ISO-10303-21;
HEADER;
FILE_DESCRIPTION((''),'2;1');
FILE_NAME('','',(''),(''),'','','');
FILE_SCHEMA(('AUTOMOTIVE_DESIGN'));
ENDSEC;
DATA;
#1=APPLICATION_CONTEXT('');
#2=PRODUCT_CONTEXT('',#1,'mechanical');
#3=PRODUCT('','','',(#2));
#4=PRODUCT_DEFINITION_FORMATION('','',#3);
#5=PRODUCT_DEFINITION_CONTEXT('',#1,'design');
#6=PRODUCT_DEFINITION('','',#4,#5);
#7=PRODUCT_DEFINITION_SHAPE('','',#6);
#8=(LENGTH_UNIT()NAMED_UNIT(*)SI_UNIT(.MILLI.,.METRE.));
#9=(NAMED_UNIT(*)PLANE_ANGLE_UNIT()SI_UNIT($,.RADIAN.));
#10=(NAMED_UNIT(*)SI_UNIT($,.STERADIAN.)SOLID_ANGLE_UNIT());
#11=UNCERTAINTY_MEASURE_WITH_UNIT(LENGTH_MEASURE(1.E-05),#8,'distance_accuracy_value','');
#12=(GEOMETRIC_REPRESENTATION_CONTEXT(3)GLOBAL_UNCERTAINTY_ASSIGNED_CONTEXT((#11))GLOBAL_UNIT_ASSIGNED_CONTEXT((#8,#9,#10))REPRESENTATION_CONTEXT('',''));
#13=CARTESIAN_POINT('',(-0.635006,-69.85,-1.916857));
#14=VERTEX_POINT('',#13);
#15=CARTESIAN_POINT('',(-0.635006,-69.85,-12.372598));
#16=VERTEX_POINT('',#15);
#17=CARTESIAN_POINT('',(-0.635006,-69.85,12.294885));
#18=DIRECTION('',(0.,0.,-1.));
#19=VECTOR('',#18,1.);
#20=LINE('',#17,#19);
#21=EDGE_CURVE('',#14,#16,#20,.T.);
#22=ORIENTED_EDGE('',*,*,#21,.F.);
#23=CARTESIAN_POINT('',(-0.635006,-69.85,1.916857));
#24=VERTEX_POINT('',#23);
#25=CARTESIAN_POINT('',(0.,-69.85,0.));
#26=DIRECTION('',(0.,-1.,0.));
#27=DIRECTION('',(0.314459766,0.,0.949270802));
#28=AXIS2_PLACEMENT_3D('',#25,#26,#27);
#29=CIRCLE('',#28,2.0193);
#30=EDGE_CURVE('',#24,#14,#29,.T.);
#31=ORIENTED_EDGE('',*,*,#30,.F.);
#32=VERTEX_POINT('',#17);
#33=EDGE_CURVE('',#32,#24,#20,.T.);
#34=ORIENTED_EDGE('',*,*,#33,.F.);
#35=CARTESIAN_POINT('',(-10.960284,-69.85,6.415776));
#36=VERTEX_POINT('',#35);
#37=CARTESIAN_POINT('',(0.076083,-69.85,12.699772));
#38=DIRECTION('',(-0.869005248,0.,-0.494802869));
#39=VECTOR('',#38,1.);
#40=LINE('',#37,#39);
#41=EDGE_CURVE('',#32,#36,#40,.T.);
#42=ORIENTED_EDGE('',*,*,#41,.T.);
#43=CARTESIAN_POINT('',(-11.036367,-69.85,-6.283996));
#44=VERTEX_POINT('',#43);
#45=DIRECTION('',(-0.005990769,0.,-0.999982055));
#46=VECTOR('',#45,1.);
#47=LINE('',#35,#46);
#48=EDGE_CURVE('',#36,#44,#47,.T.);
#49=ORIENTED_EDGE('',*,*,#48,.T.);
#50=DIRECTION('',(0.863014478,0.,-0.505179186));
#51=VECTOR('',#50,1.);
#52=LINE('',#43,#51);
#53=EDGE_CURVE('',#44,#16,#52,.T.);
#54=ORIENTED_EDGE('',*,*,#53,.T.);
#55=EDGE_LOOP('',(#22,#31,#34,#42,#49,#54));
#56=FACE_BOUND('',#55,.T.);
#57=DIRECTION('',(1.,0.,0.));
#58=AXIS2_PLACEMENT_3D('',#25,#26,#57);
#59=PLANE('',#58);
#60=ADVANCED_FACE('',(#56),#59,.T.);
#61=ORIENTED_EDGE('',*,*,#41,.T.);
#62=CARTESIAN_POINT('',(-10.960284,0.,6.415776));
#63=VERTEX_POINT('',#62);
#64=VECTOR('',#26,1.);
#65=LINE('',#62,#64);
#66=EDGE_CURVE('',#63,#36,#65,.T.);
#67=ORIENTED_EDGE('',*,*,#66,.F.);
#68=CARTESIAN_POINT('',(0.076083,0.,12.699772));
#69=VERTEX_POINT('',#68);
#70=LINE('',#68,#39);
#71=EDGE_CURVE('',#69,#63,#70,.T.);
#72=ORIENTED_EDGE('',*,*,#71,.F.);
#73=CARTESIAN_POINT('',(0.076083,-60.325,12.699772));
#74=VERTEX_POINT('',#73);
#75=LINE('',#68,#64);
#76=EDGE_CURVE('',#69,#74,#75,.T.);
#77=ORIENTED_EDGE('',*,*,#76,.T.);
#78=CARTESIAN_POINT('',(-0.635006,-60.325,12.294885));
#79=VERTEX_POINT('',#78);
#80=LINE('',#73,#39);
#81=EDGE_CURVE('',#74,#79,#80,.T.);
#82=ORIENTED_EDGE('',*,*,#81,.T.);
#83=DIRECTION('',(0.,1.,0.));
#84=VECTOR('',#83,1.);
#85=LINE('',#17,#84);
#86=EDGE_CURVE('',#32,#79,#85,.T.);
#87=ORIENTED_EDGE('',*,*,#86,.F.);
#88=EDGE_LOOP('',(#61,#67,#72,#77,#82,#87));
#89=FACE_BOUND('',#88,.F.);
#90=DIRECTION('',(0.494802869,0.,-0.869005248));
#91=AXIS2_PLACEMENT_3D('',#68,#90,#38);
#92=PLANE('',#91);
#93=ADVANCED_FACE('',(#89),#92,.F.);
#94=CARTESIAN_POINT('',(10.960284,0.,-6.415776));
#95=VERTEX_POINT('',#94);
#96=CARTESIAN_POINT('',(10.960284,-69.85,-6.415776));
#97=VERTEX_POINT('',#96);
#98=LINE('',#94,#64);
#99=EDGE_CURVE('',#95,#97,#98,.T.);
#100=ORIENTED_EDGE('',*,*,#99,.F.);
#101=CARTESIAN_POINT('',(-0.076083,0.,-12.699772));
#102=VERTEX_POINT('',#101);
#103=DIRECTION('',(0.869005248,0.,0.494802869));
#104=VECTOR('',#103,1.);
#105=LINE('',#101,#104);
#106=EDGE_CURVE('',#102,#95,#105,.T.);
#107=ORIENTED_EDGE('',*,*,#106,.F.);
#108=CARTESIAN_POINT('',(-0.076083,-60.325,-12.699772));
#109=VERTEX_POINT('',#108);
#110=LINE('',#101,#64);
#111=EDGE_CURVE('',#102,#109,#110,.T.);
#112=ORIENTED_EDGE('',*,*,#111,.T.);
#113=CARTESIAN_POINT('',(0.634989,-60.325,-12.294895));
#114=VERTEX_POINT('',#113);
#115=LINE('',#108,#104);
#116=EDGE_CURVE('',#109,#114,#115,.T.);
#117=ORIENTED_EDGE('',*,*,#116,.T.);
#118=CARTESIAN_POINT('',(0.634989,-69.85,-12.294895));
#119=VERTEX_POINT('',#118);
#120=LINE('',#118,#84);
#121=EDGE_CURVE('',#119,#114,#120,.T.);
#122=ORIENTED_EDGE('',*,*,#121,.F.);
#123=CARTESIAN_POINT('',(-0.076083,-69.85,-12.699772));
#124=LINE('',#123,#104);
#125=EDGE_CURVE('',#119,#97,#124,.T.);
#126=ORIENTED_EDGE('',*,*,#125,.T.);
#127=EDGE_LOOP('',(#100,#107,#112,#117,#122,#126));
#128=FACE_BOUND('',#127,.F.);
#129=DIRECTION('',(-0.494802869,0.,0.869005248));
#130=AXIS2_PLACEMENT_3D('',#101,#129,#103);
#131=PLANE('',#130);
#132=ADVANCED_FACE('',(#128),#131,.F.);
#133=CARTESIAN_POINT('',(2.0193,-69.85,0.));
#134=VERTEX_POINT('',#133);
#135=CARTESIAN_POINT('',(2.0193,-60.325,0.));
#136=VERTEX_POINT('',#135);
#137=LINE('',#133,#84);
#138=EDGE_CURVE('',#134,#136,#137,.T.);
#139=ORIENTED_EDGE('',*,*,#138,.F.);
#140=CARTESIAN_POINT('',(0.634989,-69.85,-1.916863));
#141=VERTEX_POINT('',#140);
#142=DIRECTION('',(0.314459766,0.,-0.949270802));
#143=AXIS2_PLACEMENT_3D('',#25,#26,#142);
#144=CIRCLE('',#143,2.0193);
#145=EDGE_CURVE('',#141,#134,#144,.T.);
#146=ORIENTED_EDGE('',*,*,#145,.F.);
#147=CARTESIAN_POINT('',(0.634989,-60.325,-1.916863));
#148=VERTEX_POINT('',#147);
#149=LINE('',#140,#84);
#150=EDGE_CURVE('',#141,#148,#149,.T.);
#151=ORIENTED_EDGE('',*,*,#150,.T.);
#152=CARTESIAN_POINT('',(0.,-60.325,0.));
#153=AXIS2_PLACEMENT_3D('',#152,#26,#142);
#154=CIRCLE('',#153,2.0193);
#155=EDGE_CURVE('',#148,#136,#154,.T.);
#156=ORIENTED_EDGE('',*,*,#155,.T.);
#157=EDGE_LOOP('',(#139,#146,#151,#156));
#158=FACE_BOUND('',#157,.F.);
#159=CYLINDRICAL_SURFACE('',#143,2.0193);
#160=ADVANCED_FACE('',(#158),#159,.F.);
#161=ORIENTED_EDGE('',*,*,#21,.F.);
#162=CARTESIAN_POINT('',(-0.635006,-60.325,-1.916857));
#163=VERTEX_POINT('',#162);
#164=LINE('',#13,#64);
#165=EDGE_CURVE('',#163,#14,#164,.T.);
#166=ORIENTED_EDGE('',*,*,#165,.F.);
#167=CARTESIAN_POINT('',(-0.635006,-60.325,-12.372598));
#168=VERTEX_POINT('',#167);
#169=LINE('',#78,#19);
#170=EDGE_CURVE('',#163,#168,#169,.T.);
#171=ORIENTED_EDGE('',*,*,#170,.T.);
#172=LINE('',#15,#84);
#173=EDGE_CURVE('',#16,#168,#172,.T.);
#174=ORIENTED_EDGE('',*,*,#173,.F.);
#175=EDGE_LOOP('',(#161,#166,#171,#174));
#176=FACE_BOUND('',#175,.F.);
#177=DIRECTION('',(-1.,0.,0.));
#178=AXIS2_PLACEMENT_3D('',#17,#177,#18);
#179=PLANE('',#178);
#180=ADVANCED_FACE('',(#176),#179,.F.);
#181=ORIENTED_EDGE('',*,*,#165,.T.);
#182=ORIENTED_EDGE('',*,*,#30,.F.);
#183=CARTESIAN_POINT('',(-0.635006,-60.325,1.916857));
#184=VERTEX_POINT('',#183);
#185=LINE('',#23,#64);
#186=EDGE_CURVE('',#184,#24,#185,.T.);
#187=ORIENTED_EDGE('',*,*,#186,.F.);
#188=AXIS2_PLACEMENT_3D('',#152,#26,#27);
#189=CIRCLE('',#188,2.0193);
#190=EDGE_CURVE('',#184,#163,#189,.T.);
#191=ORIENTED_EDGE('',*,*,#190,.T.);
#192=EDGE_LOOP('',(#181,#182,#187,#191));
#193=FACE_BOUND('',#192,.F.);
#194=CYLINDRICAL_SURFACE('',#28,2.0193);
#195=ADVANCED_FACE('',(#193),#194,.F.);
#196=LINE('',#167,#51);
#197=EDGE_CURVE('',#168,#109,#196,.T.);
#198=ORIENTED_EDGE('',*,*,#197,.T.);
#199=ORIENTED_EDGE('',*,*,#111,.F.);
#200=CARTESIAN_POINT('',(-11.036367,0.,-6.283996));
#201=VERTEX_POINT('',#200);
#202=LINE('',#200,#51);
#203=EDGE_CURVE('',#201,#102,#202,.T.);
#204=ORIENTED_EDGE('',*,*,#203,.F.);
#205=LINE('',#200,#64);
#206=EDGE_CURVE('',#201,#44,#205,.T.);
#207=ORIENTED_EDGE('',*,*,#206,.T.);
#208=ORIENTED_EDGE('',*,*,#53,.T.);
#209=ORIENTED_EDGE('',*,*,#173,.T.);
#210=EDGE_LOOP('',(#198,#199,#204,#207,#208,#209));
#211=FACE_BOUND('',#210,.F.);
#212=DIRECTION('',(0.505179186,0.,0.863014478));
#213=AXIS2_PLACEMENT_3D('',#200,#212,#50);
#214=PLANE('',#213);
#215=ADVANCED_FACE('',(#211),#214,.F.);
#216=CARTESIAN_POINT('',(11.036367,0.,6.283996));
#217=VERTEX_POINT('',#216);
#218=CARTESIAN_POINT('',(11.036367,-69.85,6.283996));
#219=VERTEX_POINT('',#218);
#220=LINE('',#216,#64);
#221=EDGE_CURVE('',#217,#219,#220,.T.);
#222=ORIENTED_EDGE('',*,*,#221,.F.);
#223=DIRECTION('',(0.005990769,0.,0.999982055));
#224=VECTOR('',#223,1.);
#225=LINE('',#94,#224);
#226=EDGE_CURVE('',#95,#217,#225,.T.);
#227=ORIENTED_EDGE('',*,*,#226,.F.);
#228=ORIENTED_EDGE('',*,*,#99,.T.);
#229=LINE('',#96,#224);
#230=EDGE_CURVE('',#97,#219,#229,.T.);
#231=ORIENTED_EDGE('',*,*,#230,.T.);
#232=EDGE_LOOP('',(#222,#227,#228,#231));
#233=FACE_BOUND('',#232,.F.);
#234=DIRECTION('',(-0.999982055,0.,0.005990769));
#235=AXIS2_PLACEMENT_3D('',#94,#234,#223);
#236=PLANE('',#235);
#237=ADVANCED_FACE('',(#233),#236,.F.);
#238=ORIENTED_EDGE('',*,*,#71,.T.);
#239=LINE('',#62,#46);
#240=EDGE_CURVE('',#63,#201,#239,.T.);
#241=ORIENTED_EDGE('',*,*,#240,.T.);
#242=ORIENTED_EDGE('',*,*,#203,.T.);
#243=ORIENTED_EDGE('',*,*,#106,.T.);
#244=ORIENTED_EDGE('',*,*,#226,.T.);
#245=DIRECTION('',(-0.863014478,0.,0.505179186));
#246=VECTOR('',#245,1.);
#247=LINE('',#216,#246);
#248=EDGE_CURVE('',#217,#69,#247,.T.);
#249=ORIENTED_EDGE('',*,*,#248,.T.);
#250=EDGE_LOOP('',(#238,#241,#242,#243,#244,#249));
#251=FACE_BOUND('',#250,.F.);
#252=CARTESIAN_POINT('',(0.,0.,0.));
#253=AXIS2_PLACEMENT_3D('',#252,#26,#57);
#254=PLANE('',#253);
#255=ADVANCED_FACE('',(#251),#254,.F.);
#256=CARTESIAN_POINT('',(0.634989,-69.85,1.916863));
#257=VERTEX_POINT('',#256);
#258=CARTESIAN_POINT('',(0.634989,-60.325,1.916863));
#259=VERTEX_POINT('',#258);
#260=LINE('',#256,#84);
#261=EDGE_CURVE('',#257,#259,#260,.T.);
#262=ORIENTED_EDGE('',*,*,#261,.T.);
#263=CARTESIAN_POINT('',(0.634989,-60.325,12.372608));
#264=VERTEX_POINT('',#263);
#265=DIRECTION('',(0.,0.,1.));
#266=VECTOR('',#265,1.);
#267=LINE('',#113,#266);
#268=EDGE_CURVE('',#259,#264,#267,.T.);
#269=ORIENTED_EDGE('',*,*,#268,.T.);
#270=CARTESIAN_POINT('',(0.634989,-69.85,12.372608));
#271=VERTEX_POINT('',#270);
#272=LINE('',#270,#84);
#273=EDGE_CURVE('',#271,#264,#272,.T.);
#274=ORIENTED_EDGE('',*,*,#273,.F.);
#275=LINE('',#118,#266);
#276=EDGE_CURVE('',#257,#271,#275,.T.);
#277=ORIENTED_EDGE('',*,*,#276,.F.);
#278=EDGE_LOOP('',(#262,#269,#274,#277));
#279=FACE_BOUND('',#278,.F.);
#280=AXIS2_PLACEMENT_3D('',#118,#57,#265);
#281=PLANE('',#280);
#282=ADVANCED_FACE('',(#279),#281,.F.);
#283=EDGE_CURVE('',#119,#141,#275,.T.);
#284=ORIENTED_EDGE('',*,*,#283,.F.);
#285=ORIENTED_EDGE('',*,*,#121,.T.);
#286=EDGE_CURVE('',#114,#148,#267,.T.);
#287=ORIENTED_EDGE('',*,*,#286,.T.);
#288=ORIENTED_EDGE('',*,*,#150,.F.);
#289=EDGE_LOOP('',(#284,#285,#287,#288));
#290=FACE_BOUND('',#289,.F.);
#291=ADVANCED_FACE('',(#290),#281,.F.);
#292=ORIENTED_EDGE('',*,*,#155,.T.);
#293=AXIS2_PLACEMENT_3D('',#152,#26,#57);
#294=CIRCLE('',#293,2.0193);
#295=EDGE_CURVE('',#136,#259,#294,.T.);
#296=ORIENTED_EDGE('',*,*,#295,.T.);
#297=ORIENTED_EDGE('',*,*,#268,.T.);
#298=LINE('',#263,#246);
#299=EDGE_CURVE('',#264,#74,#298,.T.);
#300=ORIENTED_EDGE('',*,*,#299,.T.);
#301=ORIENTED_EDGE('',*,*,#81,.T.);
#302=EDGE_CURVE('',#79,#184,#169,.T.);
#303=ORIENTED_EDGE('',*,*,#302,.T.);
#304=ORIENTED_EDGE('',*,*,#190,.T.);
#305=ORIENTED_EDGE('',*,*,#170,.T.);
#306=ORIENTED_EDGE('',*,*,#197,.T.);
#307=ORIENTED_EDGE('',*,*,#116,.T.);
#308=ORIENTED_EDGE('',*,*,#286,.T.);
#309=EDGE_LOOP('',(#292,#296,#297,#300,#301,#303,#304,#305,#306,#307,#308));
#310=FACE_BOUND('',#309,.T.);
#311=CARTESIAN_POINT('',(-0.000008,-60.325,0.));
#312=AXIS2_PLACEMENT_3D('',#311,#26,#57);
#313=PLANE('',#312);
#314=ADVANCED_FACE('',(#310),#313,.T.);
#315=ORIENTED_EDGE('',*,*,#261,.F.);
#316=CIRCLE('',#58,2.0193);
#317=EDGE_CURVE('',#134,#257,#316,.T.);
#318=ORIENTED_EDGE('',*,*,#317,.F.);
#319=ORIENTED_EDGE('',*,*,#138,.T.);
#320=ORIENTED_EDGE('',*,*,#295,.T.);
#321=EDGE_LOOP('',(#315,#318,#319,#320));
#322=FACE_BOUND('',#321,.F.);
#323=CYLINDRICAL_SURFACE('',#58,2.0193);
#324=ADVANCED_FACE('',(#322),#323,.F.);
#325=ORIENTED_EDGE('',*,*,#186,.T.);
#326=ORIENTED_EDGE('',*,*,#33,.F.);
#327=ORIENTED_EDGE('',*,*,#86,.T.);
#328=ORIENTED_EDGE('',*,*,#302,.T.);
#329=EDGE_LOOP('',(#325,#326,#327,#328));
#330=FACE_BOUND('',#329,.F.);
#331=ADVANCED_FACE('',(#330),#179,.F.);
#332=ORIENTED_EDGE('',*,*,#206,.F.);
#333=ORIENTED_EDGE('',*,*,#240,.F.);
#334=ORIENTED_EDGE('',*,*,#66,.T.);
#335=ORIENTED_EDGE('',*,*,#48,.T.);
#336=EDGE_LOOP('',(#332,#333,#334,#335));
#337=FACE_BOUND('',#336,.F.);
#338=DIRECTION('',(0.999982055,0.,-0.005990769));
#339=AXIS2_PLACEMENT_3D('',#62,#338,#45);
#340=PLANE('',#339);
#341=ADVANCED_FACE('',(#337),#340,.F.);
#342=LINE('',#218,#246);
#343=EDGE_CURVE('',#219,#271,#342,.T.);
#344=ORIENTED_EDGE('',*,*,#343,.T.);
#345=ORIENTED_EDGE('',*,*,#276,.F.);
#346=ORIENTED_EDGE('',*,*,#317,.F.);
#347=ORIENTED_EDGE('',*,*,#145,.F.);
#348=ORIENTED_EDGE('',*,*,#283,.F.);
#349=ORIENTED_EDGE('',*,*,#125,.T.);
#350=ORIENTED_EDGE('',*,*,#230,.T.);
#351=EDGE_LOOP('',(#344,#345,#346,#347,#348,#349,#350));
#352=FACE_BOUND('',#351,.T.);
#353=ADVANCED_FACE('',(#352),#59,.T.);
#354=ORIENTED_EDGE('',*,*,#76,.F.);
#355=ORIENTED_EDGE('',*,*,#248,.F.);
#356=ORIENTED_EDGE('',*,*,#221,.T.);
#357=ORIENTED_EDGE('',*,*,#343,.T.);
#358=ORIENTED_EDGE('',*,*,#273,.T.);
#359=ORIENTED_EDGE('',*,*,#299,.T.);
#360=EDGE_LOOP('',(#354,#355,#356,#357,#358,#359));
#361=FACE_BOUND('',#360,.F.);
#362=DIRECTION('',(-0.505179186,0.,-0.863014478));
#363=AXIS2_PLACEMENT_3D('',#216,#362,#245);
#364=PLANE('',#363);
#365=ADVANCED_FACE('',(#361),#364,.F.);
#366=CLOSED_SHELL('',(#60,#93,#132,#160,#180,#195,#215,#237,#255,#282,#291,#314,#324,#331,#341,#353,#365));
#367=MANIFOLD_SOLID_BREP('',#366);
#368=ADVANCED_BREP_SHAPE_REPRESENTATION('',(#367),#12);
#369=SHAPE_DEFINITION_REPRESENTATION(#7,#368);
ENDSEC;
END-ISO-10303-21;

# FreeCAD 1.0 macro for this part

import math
import FreeCAD as App
import Part
import Sketcher

V = App.Vector
Q = App.Units.Quantity


def add_polygon(sketch, points):
    """Adds a closed chain of lines whose ends are joined by coincident constraints."""
    first, n = sketch.GeometryCount, len(points)
    for a, b in zip(points, points[1:] + points[:1]):
        sketch.addGeometry(Part.LineSegment(App.Vector(*a, 0), App.Vector(*b, 0)), False)
    for i in range(n):
        sketch.addConstraint(Sketcher.Constraint("Coincident", first + i, 2, first + (i + 1) % n, 1))

doc = App.newDocument("Part")
params = doc.addObject("Spreadsheet::Sheet", "Params")
for row, (alias, value) in enumerate([
    ("sketch1_length", "0.5 in"),
    ("pad1_length", "2.75 in"),
    ("pocket1_length", "0.375 in"),
    ("pocket2_length", "0.375 in"),
], start=1):
    params.set(f"A{row}", alias)
    params.set(f"B{row}", "=" + value)
    params.setAlias(f"B{row}", alias)

body = doc.addObject("PartDesign::Body", "Body")

# Sketch on XZ plane
sketch1 = doc.addObject("Sketcher::SketchObject", "Sketch")
body.addObject(sketch1)
sketch1.AttachmentSupport = (doc.XZ_Plane, [""])
sketch1.MapMode = "FlatFace"
add_polygon(sketch1, [(11.036367, 6.283996), (0.076083, 12.699772), (-10.960284, 6.415776), (-11.036367, -6.283996), (-0.076083, -12.699772), (10.960284, -6.415776)])  # lines 0-5
sketch1.addConstraint([
    Sketcher.Constraint("Symmetric", 0, 2, 3, 2, -1, 1),
    Sketcher.Constraint("Symmetric", 1, 2, 4, 2, -1, 1),
    Sketcher.Constraint("Symmetric", 2, 2, 5, 2, -1, 1),
    Sketcher.Constraint("Equal", 0, 1),
    Sketcher.Constraint("Equal", 1, 2),
    Sketcher.Constraint("Distance", 0, Q("0.5 in")),
    Sketcher.Constraint("DistanceX", 1, 2, 3, 2, 10.884201),
    Sketcher.Constraint("DistanceX", 2, 2, 0, 2, 11.112449),
    Sketcher.Constraint("DistanceY", 2, 2, 0, 2, 18.983769),
])
sketch1.setExpression("Constraints[11]", "Params.sketch1_length")
pad1 = doc.addObject("PartDesign::Pad", "Pad")
body.addObject(pad1)
pad1.Profile = sketch1
pad1.setExpression("Length", "Params.pad1_length")

# Sketch on XZ plane
sketch2 = doc.addObject("Sketcher::SketchObject", "Sketch001")
body.addObject(sketch2)
sketch2.AttachmentSupport = (doc.XZ_Plane, [""])
sketch2.MapMode = "FlatFace"
sketch2.AttachmentOffset = App.Placement(V(0, 0, 2.75 * 25.4), App.Rotation())
add_polygon(sketch2, [(-0.635006, 12.294885), (-0.635006, -12.372598), (-0.076083, -12.699772), (0.634989, -12.294895), (0.634989, 12.372608), (0.076083, 12.699772)])  # lines 0-5
sketch2.addConstraint([
    Sketcher.Constraint("Vertical", 0),
    Sketcher.Constraint("Vertical", 3),
    Sketcher.Constraint("Symmetric", 1, 2, 4, 2, -1, 1),
    Sketcher.Constraint("Parallel", 1, 4),
    Sketcher.Constraint("Parallel", 2, 5),
    Sketcher.Constraint("Distance", 1, 0.64764),
    Sketcher.Constraint("Distance", 2, 0.818259),
    Sketcher.Constraint("Distance", 4, 0.64762),
    Sketcher.Constraint("DistanceY", 0, 2, 0, 1, 24.667483),
    Sketcher.Constraint("DistanceX", -1, 1, 2, 2, 0.634989),
    Sketcher.Constraint("DistanceX", 1, 2, 2, 2, 0.711071),
])
pocket1 = doc.addObject("PartDesign::Pocket", "Pocket")
body.addObject(pocket1)
pocket1.Profile = sketch2
pocket1.setExpression("Length", "Params.pocket1_length")

# Sketch on XZ plane
sketch3 = doc.addObject("Sketcher::SketchObject", "Sketch002")
body.addObject(sketch3)
sketch3.AttachmentSupport = (doc.XZ_Plane, [""])
sketch3.MapMode = "FlatFace"
sketch3.AttachmentOffset = App.Placement(V(0, 0, 2.75 * 25.4), App.Rotation())
sketch3.addGeometry([
    Part.ArcOfCircle(Part.Circle(V(0, 0, 0), V(0, 0, 1), 2.0193), math.radians(-71.671797), math.radians(0)),
    Part.ArcOfCircle(Part.Circle(V(0, 0, 0), V(0, 0, 1), 2.0193), math.radians(0), math.radians(71.671797)),
    Part.ArcOfCircle(Part.Circle(V(0, 0, 0), V(0, 0, 1), 2.0193), math.radians(71.671797), math.radians(288.328203)),
], False)
sketch3.addConstraint([
    Sketcher.Constraint("Tangent", 0, 2, 1, 1),
    Sketcher.Constraint("Tangent", 1, 2, 2, 1),
    Sketcher.Constraint("Tangent", 2, 2, 0, 1),
    Sketcher.Constraint("Coincident", 0, 3, -1, 1),
    Sketcher.Constraint("PointOnObject", 0, 2, -1),
    Sketcher.Constraint("Vertical", 1, 2, 2, 2),
    Sketcher.Constraint("Radius", 0, Q("0.0795 in")),
    Sketcher.Constraint("DistanceX", -1, 1, 1, 2, 0.634989),
])
pocket2 = doc.addObject("PartDesign::Pocket", "Pocket001")
body.addObject(pocket2)
pocket2.Profile = sketch3
pocket2.setExpression("Length", "Params.pocket2_length")

doc.recompute()
